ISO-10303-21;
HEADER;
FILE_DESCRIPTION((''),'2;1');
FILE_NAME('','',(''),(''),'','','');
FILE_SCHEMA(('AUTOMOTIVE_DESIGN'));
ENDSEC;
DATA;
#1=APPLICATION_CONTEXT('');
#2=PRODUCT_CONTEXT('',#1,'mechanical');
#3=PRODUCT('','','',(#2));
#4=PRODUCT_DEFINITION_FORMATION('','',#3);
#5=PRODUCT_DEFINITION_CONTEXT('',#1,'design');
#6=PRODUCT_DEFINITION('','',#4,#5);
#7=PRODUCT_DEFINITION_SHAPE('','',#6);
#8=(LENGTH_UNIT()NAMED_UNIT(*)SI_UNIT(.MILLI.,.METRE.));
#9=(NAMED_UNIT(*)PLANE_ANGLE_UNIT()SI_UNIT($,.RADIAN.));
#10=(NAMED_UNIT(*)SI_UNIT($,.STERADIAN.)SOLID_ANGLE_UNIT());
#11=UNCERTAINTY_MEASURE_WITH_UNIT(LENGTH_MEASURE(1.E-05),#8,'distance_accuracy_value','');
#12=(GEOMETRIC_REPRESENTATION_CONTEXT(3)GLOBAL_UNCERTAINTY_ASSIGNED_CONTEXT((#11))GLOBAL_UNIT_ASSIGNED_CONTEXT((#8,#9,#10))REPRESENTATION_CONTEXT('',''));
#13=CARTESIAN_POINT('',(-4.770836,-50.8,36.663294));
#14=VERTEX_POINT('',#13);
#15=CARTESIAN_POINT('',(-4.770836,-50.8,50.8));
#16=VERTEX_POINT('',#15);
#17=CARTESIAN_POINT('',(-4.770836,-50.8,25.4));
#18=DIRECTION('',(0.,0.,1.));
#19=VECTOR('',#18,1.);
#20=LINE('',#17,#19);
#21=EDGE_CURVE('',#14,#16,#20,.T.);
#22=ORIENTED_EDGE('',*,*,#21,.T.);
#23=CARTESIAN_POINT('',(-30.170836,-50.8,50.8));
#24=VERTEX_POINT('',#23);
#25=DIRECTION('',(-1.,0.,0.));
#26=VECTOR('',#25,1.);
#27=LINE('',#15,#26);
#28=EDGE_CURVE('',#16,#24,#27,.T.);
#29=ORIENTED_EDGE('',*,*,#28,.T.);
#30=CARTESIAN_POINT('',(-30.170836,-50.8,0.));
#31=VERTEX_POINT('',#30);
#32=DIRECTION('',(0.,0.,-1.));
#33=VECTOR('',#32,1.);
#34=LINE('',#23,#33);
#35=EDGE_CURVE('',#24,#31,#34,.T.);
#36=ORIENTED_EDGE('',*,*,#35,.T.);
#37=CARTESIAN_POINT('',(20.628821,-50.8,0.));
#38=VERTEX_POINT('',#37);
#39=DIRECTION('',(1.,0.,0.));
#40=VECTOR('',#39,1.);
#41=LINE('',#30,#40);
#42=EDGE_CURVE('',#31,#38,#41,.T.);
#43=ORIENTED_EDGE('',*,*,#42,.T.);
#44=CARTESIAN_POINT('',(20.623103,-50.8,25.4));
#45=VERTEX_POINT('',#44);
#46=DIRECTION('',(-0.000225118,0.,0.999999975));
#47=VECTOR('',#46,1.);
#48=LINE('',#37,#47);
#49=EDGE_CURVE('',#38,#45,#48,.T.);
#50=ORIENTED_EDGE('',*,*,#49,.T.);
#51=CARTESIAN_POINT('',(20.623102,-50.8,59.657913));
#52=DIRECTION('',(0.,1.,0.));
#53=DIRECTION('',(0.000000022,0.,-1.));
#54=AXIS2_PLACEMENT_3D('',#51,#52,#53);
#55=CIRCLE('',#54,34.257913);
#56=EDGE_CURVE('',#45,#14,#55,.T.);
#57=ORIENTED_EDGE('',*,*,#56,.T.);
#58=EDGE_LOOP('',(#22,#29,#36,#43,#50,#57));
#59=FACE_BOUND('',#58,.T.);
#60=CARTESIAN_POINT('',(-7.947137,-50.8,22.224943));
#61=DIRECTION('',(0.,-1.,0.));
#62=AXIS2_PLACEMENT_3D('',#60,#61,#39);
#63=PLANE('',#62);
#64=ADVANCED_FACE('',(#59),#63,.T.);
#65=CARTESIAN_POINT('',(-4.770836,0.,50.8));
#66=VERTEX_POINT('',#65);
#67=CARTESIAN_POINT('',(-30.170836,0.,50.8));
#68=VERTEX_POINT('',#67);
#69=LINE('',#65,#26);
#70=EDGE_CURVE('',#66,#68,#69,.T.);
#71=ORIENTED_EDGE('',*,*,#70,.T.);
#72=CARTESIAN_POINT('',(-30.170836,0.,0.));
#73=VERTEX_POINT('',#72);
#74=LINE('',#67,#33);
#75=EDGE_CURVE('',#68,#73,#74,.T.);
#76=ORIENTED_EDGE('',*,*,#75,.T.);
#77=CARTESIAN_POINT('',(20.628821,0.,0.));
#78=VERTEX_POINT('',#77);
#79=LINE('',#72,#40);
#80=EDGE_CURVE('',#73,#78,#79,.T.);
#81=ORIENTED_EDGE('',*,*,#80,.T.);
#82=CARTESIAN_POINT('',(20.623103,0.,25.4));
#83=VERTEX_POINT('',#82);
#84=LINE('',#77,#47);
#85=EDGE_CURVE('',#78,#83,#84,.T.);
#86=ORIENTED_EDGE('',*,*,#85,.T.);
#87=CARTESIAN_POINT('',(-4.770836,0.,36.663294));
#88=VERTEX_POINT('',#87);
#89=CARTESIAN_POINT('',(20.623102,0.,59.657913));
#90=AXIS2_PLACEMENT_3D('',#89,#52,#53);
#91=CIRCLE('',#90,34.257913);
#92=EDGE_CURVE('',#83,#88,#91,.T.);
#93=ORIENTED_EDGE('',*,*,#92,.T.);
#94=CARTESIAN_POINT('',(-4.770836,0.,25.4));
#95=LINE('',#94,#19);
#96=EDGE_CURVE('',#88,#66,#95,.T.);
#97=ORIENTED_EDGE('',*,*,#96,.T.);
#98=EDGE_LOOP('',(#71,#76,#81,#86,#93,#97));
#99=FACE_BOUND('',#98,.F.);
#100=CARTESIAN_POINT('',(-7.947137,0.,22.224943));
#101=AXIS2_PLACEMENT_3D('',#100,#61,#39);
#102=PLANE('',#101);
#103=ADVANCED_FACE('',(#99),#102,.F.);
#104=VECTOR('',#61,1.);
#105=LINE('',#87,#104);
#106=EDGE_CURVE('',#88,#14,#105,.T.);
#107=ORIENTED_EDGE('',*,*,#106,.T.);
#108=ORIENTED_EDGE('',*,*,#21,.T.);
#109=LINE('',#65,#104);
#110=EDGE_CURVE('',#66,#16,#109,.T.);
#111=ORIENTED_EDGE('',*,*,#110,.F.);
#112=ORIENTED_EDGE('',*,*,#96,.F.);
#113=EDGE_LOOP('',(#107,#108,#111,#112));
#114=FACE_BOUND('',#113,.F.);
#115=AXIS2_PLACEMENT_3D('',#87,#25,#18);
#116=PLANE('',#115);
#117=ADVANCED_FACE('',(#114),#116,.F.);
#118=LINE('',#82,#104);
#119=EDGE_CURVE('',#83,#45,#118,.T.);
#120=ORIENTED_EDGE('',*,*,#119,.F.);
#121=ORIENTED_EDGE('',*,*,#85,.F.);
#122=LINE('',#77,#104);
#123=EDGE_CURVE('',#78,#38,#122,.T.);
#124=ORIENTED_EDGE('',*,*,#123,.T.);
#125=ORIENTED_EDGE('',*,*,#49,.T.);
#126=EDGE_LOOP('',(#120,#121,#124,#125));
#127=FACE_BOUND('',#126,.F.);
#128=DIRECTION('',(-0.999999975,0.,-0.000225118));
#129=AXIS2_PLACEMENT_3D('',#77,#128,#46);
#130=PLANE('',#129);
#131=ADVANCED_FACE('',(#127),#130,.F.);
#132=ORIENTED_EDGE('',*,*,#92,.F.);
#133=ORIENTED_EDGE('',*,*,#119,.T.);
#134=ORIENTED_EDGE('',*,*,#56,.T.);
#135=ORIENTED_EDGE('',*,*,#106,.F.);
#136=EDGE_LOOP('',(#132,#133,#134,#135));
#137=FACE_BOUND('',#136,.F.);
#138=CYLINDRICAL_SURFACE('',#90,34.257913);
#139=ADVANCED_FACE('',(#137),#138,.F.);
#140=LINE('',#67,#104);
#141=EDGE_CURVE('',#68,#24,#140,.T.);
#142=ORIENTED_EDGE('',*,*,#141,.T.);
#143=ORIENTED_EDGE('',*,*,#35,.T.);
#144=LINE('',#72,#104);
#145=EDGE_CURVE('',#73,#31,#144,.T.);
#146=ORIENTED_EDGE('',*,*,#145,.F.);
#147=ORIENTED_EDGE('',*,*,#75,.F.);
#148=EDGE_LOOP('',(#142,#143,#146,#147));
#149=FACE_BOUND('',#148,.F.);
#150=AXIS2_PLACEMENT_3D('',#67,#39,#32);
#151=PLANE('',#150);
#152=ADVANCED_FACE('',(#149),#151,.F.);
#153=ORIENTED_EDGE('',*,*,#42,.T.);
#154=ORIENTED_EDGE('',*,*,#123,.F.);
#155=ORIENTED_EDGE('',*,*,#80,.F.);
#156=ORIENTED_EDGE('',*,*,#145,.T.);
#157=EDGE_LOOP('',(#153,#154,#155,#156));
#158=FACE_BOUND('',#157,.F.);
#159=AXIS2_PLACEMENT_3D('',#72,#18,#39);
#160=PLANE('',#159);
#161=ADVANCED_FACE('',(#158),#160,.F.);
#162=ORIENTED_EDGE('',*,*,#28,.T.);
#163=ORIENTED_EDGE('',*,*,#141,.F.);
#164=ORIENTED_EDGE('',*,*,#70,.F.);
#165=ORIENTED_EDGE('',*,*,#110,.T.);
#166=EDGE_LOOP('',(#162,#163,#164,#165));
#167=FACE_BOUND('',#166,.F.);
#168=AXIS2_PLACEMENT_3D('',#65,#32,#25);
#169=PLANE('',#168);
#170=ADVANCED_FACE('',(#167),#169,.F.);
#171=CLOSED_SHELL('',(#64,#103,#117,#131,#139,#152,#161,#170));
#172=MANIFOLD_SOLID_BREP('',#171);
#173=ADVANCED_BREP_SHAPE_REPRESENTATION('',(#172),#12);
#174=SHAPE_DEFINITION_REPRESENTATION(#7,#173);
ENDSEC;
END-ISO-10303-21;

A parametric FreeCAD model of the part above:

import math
import FreeCAD as App
import Part
import Sketcher

V = App.Vector
Q = App.Units.Quantity

doc = App.newDocument("Part")
body = doc.addObject("PartDesign::Body", "Body")

# Sketch on XZ plane
sketch1 = body.newObject("Sketcher::SketchObject", "Sketch")
sketch1.AttachmentSupport = (doc.getObject("XZ_Plane"), [""])
sketch1.MapMode = "FlatFace"
sketch1.addGeometry([
    Part.LineSegment(V(-30, 0, 0), V(21, 0, 0)),  # 0
    Part.LineSegment(V(21, 0, 0), V(21, 25, 0)),  # 1
    Part.ArcOfCircle(Part.Circle(V(21, 60, 0), V(0, 0, 1), 34), math.radians(-138), math.radians(-90)),  # 2
    Part.LineSegment(V(-5, 37, 0), V(-5, 51, 0)),  # 3
    Part.LineSegment(V(-5, 51, 0), V(-30, 51, 0)),  # 4
    Part.LineSegment(V(-30, 51, 0), V(-30, 0, 0)),  # 5
], False)
sketch1.addConstraint([
    Sketcher.Constraint("Coincident", 0, 2, 1, 1),
    Sketcher.Constraint("Coincident", 1, 2, 2, 2),
    Sketcher.Constraint("Coincident", 2, 1, 3, 1),
    Sketcher.Constraint("Coincident", 3, 2, 4, 1),
    Sketcher.Constraint("Coincident", 4, 2, 5, 1),
    Sketcher.Constraint("Coincident", 5, 2, 0, 1),
    Sketcher.Constraint("Horizontal", 0),
    Sketcher.Constraint("Vertical", 3),
    Sketcher.Constraint("Horizontal", 4),
    Sketcher.Constraint("Vertical", 5),
    Sketcher.Constraint("PointOnObject", 0, 2, -1),
    Sketcher.Constraint("Vertical", 2, 3, 1, 2),
    Sketcher.Constraint("DistanceX", 4, 2, 4, 1, Q("1 in")),
    Sketcher.Constraint("DistanceY", 5, 2, 5, 1, Q("2 in")),
    Sketcher.Constraint("Distance", 1, Q("1 in")),
    Sketcher.Constraint("Radius", 2, Q("34.257913 mm")),
    Sketcher.Constraint("DistanceY", 2, 1, 2, 3, Q("0.9053 in")),
    Sketcher.Constraint("DistanceX", 0, 1, 0, 2, Q("50.799657 mm")),
    Sketcher.Constraint("DistanceX", -1, 1, 0, 2, Q("20.628821 mm")),
])
pad1 = body.newObject("PartDesign::Pad", "Pad")
pad1.Profile = sketch1
pad1.Length = Q("2 in")

doc.recompute()
